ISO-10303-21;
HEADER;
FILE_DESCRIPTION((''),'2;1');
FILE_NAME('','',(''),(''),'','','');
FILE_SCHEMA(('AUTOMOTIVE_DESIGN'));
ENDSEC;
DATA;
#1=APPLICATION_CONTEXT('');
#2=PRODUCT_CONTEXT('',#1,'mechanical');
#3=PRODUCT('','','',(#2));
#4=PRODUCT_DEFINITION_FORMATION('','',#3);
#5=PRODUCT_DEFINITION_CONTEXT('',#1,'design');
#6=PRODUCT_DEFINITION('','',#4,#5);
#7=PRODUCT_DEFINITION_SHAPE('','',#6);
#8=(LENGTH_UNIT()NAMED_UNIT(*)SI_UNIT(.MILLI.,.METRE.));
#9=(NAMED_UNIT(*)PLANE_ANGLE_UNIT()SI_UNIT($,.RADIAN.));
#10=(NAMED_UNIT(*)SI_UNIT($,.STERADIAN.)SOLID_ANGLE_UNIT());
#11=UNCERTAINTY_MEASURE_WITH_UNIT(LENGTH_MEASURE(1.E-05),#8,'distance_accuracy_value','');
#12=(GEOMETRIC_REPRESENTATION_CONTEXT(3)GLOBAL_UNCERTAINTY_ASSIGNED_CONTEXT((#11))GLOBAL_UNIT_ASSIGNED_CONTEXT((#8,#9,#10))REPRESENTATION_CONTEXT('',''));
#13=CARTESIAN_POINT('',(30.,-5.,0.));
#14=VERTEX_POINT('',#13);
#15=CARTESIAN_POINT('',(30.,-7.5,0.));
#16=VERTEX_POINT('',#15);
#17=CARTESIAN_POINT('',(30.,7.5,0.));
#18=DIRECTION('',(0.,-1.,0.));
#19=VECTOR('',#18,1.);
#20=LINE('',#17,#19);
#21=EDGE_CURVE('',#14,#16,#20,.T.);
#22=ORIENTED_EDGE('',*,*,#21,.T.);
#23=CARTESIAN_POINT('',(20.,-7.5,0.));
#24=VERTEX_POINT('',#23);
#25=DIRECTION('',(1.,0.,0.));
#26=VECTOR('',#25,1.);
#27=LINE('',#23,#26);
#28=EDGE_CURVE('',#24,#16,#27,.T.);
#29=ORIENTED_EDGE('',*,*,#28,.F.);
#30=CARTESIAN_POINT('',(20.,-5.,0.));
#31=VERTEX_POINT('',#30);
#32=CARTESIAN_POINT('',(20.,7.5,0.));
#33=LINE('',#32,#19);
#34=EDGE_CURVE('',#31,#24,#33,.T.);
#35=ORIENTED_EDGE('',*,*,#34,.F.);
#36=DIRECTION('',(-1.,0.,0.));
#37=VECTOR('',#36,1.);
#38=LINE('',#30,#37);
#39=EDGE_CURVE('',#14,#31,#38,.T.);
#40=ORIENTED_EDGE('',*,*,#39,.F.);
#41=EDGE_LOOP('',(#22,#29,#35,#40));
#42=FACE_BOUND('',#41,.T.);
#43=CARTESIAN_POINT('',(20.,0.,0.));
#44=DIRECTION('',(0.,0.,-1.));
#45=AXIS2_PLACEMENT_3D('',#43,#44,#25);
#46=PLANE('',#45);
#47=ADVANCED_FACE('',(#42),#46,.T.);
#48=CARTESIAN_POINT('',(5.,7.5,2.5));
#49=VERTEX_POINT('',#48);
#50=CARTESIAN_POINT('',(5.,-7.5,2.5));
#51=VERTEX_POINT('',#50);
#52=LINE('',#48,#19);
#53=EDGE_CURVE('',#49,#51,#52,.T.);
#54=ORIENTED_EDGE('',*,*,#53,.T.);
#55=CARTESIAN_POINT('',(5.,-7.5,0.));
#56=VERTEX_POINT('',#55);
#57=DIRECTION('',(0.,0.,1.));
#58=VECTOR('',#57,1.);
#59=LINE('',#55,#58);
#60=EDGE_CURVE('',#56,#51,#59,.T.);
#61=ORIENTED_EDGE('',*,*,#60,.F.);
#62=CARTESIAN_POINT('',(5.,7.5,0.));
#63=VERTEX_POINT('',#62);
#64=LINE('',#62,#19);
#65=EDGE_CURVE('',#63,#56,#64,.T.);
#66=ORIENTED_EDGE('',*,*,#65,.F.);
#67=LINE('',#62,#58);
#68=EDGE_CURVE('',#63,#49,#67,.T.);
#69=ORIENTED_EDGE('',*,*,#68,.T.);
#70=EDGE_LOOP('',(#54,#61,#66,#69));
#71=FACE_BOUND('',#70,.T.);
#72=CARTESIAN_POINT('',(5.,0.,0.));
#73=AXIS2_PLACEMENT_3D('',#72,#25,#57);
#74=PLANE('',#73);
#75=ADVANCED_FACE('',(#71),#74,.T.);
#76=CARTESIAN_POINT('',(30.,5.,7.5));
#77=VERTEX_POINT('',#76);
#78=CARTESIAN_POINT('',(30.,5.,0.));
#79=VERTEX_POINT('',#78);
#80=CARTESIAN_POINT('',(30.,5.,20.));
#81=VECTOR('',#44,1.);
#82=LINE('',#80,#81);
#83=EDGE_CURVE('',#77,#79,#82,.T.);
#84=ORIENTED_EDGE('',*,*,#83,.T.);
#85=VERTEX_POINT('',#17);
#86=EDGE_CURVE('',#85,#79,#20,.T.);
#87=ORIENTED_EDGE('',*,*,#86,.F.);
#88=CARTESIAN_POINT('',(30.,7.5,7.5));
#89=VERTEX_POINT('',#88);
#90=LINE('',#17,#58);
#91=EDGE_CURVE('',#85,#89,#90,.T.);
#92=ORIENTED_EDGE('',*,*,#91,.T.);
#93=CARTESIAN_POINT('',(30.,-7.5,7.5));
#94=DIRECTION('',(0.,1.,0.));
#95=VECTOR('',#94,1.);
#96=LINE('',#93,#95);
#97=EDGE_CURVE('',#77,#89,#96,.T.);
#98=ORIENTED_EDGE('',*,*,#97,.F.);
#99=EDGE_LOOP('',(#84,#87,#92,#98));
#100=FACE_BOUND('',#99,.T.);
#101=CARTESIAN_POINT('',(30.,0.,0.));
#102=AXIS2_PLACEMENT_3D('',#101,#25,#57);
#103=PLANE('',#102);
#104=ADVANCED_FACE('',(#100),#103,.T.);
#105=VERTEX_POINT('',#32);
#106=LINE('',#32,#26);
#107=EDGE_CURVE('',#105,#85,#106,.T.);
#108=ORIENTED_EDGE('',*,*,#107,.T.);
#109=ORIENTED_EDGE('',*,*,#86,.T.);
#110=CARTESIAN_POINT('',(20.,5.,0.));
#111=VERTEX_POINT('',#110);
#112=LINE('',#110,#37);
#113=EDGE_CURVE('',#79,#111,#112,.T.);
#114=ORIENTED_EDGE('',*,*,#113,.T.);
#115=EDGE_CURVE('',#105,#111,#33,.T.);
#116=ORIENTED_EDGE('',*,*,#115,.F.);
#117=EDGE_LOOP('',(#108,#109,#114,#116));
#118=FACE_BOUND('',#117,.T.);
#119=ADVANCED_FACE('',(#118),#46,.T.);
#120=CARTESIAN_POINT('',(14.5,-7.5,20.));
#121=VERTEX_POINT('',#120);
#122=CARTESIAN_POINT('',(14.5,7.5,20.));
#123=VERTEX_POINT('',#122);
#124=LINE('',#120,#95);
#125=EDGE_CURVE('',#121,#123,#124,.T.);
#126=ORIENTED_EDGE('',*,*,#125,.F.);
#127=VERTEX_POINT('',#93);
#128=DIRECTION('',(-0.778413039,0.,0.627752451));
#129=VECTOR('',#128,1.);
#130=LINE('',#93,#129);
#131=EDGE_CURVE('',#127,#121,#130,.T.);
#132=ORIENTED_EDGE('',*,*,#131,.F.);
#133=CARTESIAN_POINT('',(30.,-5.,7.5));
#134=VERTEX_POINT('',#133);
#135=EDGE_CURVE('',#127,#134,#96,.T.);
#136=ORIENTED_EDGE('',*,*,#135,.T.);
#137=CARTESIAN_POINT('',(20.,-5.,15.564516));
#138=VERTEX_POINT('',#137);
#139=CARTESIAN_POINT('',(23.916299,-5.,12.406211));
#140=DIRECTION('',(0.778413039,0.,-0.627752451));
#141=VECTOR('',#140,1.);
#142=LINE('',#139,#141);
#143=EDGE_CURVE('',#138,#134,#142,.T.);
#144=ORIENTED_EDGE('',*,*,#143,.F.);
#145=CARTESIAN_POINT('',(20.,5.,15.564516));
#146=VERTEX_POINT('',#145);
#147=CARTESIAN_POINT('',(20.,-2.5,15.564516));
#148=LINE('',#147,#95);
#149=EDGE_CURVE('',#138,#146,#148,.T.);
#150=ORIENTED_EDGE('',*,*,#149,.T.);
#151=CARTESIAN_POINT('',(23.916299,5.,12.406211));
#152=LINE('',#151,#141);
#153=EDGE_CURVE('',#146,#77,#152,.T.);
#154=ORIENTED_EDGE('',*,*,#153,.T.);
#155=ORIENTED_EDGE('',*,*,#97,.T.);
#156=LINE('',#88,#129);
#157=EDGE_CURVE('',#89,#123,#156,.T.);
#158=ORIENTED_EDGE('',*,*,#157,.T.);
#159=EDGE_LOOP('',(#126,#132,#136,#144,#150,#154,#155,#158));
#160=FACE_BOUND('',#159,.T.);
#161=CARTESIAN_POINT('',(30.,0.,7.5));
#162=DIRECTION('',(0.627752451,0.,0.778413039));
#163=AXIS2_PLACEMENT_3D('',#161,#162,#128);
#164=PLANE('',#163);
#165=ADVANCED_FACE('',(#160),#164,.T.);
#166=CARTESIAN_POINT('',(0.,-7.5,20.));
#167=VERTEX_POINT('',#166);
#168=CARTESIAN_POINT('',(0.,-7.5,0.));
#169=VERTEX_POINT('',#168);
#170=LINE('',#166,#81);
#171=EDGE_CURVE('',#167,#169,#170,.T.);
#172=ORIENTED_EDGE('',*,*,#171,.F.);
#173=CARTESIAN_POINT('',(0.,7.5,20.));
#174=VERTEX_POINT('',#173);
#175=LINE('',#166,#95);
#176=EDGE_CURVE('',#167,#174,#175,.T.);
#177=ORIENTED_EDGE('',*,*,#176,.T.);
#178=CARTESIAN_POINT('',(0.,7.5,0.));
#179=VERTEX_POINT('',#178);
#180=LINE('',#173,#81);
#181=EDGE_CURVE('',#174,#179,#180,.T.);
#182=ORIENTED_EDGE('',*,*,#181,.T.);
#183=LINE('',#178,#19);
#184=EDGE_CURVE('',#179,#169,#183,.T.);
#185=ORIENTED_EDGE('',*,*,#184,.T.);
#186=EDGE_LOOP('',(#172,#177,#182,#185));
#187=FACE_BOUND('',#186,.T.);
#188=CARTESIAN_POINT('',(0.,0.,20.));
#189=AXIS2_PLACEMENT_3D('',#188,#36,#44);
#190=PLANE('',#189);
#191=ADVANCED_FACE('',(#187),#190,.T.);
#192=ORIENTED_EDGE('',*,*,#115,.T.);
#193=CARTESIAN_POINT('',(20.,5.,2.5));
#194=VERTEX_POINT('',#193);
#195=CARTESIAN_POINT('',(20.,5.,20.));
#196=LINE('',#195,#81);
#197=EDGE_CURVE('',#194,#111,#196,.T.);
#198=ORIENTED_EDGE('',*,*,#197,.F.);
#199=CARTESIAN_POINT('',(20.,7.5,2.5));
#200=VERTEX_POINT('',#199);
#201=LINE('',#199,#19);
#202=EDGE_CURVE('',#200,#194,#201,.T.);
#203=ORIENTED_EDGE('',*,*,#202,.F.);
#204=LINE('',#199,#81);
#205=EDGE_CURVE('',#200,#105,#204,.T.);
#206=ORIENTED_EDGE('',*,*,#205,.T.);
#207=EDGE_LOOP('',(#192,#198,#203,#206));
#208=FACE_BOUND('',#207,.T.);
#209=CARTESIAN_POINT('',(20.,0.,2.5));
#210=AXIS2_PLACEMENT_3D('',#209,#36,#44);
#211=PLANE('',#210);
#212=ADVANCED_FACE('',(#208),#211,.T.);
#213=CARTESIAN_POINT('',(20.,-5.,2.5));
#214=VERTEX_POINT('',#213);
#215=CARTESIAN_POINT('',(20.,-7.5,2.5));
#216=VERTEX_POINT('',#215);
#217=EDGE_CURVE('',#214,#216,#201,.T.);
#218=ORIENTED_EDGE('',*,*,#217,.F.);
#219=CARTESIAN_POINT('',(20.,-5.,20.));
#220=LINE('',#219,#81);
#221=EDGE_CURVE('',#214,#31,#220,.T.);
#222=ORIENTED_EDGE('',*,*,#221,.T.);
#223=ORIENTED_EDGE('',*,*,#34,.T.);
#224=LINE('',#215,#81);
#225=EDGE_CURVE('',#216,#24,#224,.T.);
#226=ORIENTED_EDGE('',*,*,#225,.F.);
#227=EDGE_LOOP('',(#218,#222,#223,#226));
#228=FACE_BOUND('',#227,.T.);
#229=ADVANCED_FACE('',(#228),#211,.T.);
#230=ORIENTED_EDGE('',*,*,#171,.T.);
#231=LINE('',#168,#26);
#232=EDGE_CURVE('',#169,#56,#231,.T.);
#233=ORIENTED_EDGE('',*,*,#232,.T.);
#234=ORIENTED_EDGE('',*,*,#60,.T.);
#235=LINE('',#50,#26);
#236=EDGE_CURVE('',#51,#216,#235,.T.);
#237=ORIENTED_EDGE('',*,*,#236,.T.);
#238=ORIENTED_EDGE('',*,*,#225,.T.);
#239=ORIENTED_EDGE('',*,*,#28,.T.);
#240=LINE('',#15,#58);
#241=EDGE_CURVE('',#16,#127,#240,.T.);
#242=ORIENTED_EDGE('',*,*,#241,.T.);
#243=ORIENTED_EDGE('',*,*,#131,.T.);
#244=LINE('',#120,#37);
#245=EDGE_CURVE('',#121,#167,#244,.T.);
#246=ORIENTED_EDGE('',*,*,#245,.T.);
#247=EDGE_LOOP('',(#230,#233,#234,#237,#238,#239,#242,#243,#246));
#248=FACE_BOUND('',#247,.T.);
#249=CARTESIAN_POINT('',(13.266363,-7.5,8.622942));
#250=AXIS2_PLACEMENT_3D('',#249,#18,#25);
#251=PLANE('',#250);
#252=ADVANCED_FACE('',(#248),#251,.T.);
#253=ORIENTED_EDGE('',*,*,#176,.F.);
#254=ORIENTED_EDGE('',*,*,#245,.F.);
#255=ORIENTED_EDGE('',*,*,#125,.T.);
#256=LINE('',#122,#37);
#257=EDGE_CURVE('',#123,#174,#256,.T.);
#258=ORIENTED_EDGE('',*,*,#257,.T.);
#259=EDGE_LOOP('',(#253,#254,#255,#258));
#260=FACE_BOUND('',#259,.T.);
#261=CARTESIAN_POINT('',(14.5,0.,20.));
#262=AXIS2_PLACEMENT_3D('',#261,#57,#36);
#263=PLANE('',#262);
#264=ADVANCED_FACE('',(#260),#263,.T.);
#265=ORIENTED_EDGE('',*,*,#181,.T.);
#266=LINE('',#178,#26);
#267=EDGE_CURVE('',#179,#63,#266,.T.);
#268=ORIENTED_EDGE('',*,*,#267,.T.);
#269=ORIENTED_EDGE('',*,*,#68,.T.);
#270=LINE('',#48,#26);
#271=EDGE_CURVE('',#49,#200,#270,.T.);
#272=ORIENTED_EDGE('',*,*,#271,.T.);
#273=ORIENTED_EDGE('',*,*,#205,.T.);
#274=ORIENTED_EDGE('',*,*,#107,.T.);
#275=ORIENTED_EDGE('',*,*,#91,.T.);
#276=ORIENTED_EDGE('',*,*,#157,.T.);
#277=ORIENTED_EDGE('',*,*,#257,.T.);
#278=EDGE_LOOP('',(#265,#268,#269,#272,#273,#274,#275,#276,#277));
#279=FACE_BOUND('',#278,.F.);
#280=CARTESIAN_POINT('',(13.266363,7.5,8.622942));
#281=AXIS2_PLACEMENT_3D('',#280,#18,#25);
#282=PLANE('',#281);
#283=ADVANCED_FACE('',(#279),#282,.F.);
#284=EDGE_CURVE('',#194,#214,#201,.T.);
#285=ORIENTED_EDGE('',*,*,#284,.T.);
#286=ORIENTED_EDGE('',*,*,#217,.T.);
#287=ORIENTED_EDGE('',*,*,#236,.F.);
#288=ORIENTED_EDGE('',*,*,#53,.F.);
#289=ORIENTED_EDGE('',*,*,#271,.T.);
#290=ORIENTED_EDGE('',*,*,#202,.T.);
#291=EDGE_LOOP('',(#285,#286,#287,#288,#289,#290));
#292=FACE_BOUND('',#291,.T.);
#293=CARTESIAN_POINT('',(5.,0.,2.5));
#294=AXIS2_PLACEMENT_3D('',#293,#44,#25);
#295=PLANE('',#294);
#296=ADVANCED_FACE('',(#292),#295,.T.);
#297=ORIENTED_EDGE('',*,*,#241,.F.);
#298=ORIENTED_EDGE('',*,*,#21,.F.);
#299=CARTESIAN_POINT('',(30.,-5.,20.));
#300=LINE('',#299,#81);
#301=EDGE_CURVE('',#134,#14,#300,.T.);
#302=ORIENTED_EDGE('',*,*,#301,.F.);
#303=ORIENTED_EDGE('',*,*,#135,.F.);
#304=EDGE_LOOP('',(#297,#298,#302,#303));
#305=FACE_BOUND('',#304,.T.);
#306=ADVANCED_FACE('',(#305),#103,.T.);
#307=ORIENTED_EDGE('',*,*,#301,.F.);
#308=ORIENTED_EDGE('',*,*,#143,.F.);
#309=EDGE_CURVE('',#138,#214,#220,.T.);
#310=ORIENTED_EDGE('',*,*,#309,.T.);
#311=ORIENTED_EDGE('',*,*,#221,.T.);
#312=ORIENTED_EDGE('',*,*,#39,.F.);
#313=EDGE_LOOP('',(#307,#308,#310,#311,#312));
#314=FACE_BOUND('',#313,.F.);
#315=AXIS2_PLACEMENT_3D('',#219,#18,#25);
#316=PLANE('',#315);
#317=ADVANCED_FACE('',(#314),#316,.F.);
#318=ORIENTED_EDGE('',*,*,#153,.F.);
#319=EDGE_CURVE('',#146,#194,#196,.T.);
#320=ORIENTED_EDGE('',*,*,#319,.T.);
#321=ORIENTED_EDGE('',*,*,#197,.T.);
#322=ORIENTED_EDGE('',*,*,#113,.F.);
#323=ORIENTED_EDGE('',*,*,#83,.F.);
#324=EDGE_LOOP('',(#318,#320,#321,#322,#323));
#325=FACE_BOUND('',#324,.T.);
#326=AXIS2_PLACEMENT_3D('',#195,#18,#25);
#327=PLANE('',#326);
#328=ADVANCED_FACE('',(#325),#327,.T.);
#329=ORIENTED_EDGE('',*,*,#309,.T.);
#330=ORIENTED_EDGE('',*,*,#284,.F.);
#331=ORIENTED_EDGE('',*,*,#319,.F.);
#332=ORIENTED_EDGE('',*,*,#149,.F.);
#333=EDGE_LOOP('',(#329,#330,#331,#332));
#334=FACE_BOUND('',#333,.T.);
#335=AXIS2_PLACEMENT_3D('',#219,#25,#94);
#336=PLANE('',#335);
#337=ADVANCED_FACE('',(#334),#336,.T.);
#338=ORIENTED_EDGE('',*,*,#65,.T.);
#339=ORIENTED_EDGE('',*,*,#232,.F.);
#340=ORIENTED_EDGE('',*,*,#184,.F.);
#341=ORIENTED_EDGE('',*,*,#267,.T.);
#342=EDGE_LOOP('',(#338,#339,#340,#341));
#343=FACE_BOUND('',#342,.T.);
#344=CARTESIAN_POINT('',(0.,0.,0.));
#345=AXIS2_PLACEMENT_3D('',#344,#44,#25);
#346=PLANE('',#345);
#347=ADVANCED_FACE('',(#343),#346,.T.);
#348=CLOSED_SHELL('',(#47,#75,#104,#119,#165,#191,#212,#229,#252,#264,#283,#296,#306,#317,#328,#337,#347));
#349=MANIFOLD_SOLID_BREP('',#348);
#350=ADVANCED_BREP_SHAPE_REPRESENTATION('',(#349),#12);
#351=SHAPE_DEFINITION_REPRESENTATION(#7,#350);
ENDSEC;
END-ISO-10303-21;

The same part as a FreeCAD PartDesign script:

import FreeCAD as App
import Part
import Sketcher
Q = App.Units.Quantity


def add_polygon(sketch, points):
    """Adds a closed chain of lines whose ends are joined by coincident constraints."""
    first, n = sketch.GeometryCount, len(points)
    for a, b in zip(points, points[1:] + points[:1]):
        sketch.addGeometry(Part.LineSegment(App.Vector(*a, 0), App.Vector(*b, 0)), False)
    for i in range(n):
        sketch.addConstraint(Sketcher.Constraint("Coincident", first + i, 2, first + (i + 1) % n, 1))

doc = App.newDocument("Part")
params = doc.addObject("Spreadsheet::Sheet", "Params")
for row, (alias, value) in enumerate([
    ("sketch1_width", "5 mm"),
    ("sketch1_width2", "15 mm"),
    ("sketch1_width3", "10 mm"),
    ("sketch1_height", "20 mm"),
    ("sketch1_width4", "14.5 mm"),
    ("pad1_length", "15 mm"),
    ("sketch2_width", "10 mm"),
], start=1):
    params.set(f"A{row}", alias)
    params.set(f"B{row}", "=" + value)
    params.setAlias(f"B{row}", alias)

body = doc.addObject("PartDesign::Body", "Body")

sketch1 = body.newObject("Sketcher::SketchObject", "Sketch")
sketch1.AttachmentSupport = (doc.getObject("XZ_Plane"), [""])
sketch1.MapMode = "FlatFace"
add_polygon(sketch1, [(0, 20), (0, 0), (5, 0), (5, 2.5), (20, 2.5), (20, 0), (30, 0), (30, 7.5), (14.5, 20)])
sketch1.addConstraint(Sketcher.Constraint("Vertical", 0))
sketch1.addConstraint(Sketcher.Constraint("Horizontal", 1))
sketch1.addConstraint(Sketcher.Constraint("Vertical", 2))
sketch1.addConstraint(Sketcher.Constraint("Horizontal", 3))
sketch1.addConstraint(Sketcher.Constraint("Vertical", 4))
sketch1.addConstraint(Sketcher.Constraint("Horizontal", 5))
sketch1.addConstraint(Sketcher.Constraint("Vertical", 6))
sketch1.addConstraint(Sketcher.Constraint("Horizontal", 8))
sketch1.addConstraint(Sketcher.Constraint("Coincident", 0, 2, -1, 1))
sketch1.addConstraint(Sketcher.Constraint("PointOnObject", 4, 2, -1))
sketch1.addConstraint(Sketcher.Constraint("DistanceX", 1, 1, 1, 2, Q("5 mm")))
sketch1.addConstraint(Sketcher.Constraint("DistanceX", 3, 1, 3, 2, Q("15 mm")))
sketch1.addConstraint(Sketcher.Constraint("DistanceX", 5, 1, 5, 2, Q("10 mm")))
sketch1.addConstraint(Sketcher.Constraint("DistanceY", 0, 2, 0, 1, Q("20 mm")))
sketch1.addConstraint(Sketcher.Constraint("DistanceX", 8, 2, 8, 1, Q("14.5 mm")))
sketch1.addConstraint(Sketcher.Constraint("DistanceY", 2, 1, 2, 2, Q("2.5 mm")))
sketch1.addConstraint(Sketcher.Constraint("DistanceY", 6, 1, 6, 2, Q("7.5 mm")))
sketch1.setExpression("Constraints[19]", "Params.sketch1_width")
sketch1.setExpression("Constraints[20]", "Params.sketch1_width2")
sketch1.setExpression("Constraints[21]", "Params.sketch1_width3")
sketch1.setExpression("Constraints[22]", "Params.sketch1_height")
sketch1.setExpression("Constraints[23]", "Params.sketch1_width4")
pad1 = body.newObject("PartDesign::Pad", "Pad")
pad1.Profile = sketch1
pad1.setExpression("Length", "Params.pad1_length")
pad1.Midplane = True

sketch2 = body.newObject("Sketcher::SketchObject", "Sketch001")
sketch2.AttachmentSupport = (doc.getObject("XY_Plane"), [""])
sketch2.MapMode = "FlatFace"
sketch2.AttachmentOffset = App.Placement(App.Vector(0, 0, 20), App.Rotation())
add_polygon(sketch2, [(20, 5), (20, -5), (30, -5), (30, 5)])
sketch2.addConstraint(Sketcher.Constraint("Vertical", 0))
sketch2.addConstraint(Sketcher.Constraint("Horizontal", 1))
sketch2.addConstraint(Sketcher.Constraint("Vertical", 2))
sketch2.addConstraint(Sketcher.Constraint("Horizontal", 3))
sketch2.addConstraint(Sketcher.Constraint("Equal", 3, 0))
sketch2.addConstraint(Sketcher.Constraint("DistanceX", 1, 1, 1, 2, Q("10 mm")))
sketch2.addConstraint(Sketcher.Constraint("DistanceX", -1, 1, 0, 2, Q("20 mm")))
sketch2.addConstraint(Sketcher.Constraint("DistanceY", 0, 2, -1, 1, Q("5 mm")))
sketch2.setExpression("Constraints[9]", "Params.sketch2_width")
pocket1 = body.newObject("PartDesign::Pocket", "Pocket")
pocket1.Profile = sketch2
pocket1.Type = "ThroughAll"

doc.recompute()
